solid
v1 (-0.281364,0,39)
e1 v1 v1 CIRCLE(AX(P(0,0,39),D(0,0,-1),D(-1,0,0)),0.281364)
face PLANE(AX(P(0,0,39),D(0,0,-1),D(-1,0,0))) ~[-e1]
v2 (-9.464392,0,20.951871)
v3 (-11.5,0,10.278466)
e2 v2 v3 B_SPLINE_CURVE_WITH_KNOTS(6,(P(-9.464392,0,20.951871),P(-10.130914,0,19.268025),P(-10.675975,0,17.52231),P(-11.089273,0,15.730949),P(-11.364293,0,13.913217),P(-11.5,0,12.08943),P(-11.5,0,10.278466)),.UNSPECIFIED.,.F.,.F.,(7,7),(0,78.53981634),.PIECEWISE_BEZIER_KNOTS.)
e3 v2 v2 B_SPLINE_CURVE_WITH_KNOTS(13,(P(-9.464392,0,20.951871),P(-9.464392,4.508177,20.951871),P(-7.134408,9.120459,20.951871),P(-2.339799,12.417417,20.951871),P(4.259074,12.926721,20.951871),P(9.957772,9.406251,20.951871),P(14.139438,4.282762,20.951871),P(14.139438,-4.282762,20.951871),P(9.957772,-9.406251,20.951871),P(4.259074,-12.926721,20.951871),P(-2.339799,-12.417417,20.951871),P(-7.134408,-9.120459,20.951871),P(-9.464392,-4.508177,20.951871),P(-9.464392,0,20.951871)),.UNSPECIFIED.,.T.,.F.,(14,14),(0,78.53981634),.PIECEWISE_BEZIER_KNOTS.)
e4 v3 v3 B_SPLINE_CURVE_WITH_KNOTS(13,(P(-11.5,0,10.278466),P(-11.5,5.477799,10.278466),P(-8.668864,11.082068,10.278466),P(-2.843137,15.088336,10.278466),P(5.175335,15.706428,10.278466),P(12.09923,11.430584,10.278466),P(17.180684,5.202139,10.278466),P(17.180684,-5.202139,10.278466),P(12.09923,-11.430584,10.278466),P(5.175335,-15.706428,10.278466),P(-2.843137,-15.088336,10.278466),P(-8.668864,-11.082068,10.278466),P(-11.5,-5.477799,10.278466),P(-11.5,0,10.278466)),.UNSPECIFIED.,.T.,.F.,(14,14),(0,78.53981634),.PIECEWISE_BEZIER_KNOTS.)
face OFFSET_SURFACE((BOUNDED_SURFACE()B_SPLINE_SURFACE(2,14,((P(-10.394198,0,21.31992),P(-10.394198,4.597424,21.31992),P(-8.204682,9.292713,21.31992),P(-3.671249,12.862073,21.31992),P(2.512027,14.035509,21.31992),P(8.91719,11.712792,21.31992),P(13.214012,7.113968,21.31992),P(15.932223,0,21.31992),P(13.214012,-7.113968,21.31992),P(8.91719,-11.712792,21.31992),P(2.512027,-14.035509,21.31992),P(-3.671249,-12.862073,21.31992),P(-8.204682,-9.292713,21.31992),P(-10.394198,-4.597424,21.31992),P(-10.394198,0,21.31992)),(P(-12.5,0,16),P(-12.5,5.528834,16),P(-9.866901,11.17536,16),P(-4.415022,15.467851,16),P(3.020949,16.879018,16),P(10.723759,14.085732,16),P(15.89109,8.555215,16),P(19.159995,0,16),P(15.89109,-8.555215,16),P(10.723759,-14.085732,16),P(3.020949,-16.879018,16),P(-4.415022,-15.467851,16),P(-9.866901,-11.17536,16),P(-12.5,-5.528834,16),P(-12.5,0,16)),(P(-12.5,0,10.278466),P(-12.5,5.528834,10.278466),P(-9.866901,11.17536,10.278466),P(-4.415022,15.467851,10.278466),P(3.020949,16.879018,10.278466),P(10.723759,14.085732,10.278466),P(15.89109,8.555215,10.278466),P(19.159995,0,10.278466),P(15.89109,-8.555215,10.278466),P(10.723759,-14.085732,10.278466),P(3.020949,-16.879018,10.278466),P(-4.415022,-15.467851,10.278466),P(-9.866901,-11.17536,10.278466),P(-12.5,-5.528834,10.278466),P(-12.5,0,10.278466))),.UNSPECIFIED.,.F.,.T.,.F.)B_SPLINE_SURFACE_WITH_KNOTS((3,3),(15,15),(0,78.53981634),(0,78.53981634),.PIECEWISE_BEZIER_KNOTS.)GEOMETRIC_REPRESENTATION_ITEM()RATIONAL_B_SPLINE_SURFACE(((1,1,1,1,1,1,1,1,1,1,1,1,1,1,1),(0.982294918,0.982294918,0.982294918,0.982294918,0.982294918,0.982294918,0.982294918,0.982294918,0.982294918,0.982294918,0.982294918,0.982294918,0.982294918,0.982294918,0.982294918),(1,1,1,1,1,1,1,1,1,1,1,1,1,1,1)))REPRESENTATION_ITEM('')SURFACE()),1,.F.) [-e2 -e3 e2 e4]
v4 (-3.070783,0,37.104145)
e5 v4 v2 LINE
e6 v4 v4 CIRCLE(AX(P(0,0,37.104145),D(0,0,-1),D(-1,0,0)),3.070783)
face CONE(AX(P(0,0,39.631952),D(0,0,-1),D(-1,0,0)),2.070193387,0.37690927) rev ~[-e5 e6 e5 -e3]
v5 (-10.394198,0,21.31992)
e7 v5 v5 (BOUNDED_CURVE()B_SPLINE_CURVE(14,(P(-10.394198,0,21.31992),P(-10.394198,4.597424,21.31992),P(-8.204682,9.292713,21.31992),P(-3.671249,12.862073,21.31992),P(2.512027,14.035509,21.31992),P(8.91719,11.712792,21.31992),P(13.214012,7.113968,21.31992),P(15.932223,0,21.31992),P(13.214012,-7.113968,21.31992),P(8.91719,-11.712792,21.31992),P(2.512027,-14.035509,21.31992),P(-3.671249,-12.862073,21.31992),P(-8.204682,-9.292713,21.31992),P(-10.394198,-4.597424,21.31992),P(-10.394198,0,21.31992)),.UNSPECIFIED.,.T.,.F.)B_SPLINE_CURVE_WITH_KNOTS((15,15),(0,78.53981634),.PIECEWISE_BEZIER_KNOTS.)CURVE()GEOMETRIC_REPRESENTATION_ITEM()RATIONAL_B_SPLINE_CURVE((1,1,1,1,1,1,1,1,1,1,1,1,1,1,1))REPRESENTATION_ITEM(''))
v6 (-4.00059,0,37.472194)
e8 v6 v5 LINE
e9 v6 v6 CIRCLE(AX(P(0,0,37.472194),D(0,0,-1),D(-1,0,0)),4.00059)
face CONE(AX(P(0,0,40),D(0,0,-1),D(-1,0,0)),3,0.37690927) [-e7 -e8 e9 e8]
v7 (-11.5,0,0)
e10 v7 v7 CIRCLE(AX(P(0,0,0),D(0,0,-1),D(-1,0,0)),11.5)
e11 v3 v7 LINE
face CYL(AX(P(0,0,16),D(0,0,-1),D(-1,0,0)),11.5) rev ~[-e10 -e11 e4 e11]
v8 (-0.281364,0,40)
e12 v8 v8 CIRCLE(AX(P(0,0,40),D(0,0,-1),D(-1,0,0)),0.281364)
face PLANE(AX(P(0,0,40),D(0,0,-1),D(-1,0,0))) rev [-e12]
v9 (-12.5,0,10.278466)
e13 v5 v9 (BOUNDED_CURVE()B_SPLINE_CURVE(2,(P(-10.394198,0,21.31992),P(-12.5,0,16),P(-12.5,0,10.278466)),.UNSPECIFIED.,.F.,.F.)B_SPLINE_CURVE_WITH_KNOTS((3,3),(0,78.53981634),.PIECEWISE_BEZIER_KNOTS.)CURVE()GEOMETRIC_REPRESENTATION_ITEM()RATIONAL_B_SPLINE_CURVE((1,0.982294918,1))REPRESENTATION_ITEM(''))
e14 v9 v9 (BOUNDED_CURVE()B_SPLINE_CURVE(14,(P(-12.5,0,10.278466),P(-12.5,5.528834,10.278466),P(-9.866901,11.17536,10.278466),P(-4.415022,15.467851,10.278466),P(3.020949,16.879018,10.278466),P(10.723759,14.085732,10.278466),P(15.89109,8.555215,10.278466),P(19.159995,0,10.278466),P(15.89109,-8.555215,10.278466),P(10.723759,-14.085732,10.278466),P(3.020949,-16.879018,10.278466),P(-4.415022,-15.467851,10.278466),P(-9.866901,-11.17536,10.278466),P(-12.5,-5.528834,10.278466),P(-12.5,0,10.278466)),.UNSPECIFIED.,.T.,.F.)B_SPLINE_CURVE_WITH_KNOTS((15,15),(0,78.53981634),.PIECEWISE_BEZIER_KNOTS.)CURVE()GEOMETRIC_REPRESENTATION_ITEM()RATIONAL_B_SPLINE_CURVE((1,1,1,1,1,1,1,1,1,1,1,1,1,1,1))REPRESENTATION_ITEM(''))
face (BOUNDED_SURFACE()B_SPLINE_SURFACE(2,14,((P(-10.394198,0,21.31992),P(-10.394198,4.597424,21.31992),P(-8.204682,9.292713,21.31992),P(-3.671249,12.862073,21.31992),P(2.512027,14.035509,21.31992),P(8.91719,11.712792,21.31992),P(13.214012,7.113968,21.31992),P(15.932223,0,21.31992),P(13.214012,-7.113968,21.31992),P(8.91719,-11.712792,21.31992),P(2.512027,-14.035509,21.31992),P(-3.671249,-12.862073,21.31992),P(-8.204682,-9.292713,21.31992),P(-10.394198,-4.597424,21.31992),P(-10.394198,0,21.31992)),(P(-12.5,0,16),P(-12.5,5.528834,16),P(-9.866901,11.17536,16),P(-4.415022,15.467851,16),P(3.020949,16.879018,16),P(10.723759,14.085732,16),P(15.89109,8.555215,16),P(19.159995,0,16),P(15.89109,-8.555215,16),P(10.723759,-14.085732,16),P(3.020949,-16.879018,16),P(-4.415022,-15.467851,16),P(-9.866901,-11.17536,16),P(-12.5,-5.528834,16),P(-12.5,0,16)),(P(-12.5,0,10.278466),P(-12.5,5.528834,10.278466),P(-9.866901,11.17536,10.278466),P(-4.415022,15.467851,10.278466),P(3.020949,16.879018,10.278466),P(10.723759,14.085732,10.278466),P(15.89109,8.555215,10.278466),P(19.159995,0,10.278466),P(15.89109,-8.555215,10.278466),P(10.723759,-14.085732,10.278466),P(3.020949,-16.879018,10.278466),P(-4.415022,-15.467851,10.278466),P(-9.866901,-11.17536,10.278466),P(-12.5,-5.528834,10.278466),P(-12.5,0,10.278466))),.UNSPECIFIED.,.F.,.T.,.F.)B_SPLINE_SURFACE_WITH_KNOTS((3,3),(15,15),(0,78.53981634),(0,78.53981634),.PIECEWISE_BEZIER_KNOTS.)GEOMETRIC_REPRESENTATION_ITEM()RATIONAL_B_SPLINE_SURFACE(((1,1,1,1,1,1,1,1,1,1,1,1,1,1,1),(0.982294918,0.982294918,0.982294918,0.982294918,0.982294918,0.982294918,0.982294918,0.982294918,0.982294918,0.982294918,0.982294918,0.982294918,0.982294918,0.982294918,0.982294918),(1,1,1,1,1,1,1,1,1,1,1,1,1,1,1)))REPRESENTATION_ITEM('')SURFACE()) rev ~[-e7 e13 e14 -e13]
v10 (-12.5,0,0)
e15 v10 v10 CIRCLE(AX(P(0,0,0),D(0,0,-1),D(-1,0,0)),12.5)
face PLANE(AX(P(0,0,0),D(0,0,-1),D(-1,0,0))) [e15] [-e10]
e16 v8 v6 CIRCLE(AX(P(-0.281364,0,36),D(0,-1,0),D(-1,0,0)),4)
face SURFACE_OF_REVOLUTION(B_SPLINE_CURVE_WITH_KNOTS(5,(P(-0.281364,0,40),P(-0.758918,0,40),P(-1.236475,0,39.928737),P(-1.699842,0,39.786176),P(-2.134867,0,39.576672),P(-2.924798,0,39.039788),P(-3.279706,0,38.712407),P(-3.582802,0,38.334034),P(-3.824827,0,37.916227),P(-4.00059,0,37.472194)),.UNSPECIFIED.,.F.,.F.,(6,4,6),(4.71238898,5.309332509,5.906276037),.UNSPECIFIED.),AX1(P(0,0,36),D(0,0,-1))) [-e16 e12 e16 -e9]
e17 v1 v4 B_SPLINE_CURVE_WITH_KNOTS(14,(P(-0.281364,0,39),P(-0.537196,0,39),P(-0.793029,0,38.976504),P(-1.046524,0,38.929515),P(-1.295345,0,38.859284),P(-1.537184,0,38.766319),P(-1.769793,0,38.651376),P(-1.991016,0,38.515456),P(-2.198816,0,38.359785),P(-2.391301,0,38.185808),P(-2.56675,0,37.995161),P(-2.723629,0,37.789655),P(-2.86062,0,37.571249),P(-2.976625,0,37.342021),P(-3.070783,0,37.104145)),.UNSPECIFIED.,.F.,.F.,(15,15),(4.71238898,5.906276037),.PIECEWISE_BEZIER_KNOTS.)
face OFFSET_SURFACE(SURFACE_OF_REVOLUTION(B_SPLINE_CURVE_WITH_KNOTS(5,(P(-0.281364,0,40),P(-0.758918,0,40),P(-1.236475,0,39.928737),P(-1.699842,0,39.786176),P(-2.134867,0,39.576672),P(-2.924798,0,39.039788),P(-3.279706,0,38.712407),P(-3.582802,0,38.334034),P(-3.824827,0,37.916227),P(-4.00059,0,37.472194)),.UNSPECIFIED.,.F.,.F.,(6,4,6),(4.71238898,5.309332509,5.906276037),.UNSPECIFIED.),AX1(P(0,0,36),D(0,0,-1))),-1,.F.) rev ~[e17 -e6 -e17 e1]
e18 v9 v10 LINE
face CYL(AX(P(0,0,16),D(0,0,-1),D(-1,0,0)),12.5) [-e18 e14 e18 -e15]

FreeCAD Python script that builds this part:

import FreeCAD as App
import Part
import Sketcher

V = App.Vector
Q = App.Units.Quantity


def edges_at(feature, points):
    """Names of the edges that pass closest to the given points."""
    edges = feature.Shape.Edges
    near = lambda p: min(range(len(edges)), key=lambda i: edges[i].distToShape(Part.Vertex(*p))[0])
    return sorted({f"Edge{near(p) + 1}" for p in points})


def faces_at(feature, points):
    """Names of the faces that lie closest to the given points."""
    faces = feature.Shape.Faces
    near = lambda p: min(range(len(faces)), key=lambda i: faces[i].distToShape(Part.Vertex(*p))[0])
    return sorted({f"Face{near(p) + 1}" for p in points})


def add_polygon(sketch, points):
    """Adds a closed chain of lines whose ends are joined by coincident constraints."""
    first, n = sketch.GeometryCount, len(points)
    for a, b in zip(points, points[1:] + points[:1]):
        sketch.addGeometry(Part.LineSegment(App.Vector(*a, 0), App.Vector(*b, 0)), False)
    for i in range(n):
        sketch.addConstraint(Sketcher.Constraint("Coincident", first + i, 2, first + (i + 1) % n, 1))

doc = App.newDocument("Part")
body = doc.addObject("PartDesign::Body", "Body")

sketch1 = body.newObject("Sketcher::SketchObject", "Sketch")
sketch1.AttachmentSupport = (doc.getObject("XZ_Plane"), [""])
sketch1.MapMode = "FlatFace"
add_polygon(sketch1, [(-12.5, 0), (0, 0), (0, 40), (-3, 40), (-12.5, 16)])
sketch1.addConstraint(Sketcher.Constraint("Horizontal", 0))
sketch1.addConstraint(Sketcher.Constraint("Vertical", 1))
sketch1.addConstraint(Sketcher.Constraint("Horizontal", 2))
sketch1.addConstraint(Sketcher.Constraint("Vertical", 4))
sketch1.addConstraint(Sketcher.Constraint("Coincident", 0, 2, -1, 1))
sketch1.addConstraint(Sketcher.Constraint("DistanceX", 2, 2, 2, 1, Q("3 mm")))
sketch1.addConstraint(Sketcher.Constraint("DistanceY", 1, 1, 1, 2, Q("40 mm")))
sketch1.addConstraint(Sketcher.Constraint("DistanceY", 4, 2, 4, 1, Q("16 mm")))
sketch1.addConstraint(Sketcher.Constraint("DistanceX", 0, 1, 0, 2, Q("12.5 mm")))
revolution = body.newObject("PartDesign::Revolution", "Revolution")
revolution.Profile = sketch1
revolution.ReferenceAxis = (sketch1, ["V_Axis"])
revolution.Angle = 360
doc.recompute()

fillet = body.newObject("PartDesign::Fillet", "Fillet")
fillet.Base = (revolution, edges_at(revolution, [(3, 0, 40)]))
fillet.Radius = 4
doc.recompute()

fillet2 = body.newObject("PartDesign::Fillet", "Fillet001")
fillet2.Base = (fillet, edges_at(fillet, [(12.5, 0, 16)]))
fillet2.Radius = 30
doc.recompute()

thickness = body.newObject("PartDesign::Thickness", "Thickness")
thickness.Base = (fillet2, faces_at(fillet2, [(0, 0, 0)]))
thickness.Value = 1
thickness.Reversed = True
thickness.Join = "Arc"

doc.recompute()
